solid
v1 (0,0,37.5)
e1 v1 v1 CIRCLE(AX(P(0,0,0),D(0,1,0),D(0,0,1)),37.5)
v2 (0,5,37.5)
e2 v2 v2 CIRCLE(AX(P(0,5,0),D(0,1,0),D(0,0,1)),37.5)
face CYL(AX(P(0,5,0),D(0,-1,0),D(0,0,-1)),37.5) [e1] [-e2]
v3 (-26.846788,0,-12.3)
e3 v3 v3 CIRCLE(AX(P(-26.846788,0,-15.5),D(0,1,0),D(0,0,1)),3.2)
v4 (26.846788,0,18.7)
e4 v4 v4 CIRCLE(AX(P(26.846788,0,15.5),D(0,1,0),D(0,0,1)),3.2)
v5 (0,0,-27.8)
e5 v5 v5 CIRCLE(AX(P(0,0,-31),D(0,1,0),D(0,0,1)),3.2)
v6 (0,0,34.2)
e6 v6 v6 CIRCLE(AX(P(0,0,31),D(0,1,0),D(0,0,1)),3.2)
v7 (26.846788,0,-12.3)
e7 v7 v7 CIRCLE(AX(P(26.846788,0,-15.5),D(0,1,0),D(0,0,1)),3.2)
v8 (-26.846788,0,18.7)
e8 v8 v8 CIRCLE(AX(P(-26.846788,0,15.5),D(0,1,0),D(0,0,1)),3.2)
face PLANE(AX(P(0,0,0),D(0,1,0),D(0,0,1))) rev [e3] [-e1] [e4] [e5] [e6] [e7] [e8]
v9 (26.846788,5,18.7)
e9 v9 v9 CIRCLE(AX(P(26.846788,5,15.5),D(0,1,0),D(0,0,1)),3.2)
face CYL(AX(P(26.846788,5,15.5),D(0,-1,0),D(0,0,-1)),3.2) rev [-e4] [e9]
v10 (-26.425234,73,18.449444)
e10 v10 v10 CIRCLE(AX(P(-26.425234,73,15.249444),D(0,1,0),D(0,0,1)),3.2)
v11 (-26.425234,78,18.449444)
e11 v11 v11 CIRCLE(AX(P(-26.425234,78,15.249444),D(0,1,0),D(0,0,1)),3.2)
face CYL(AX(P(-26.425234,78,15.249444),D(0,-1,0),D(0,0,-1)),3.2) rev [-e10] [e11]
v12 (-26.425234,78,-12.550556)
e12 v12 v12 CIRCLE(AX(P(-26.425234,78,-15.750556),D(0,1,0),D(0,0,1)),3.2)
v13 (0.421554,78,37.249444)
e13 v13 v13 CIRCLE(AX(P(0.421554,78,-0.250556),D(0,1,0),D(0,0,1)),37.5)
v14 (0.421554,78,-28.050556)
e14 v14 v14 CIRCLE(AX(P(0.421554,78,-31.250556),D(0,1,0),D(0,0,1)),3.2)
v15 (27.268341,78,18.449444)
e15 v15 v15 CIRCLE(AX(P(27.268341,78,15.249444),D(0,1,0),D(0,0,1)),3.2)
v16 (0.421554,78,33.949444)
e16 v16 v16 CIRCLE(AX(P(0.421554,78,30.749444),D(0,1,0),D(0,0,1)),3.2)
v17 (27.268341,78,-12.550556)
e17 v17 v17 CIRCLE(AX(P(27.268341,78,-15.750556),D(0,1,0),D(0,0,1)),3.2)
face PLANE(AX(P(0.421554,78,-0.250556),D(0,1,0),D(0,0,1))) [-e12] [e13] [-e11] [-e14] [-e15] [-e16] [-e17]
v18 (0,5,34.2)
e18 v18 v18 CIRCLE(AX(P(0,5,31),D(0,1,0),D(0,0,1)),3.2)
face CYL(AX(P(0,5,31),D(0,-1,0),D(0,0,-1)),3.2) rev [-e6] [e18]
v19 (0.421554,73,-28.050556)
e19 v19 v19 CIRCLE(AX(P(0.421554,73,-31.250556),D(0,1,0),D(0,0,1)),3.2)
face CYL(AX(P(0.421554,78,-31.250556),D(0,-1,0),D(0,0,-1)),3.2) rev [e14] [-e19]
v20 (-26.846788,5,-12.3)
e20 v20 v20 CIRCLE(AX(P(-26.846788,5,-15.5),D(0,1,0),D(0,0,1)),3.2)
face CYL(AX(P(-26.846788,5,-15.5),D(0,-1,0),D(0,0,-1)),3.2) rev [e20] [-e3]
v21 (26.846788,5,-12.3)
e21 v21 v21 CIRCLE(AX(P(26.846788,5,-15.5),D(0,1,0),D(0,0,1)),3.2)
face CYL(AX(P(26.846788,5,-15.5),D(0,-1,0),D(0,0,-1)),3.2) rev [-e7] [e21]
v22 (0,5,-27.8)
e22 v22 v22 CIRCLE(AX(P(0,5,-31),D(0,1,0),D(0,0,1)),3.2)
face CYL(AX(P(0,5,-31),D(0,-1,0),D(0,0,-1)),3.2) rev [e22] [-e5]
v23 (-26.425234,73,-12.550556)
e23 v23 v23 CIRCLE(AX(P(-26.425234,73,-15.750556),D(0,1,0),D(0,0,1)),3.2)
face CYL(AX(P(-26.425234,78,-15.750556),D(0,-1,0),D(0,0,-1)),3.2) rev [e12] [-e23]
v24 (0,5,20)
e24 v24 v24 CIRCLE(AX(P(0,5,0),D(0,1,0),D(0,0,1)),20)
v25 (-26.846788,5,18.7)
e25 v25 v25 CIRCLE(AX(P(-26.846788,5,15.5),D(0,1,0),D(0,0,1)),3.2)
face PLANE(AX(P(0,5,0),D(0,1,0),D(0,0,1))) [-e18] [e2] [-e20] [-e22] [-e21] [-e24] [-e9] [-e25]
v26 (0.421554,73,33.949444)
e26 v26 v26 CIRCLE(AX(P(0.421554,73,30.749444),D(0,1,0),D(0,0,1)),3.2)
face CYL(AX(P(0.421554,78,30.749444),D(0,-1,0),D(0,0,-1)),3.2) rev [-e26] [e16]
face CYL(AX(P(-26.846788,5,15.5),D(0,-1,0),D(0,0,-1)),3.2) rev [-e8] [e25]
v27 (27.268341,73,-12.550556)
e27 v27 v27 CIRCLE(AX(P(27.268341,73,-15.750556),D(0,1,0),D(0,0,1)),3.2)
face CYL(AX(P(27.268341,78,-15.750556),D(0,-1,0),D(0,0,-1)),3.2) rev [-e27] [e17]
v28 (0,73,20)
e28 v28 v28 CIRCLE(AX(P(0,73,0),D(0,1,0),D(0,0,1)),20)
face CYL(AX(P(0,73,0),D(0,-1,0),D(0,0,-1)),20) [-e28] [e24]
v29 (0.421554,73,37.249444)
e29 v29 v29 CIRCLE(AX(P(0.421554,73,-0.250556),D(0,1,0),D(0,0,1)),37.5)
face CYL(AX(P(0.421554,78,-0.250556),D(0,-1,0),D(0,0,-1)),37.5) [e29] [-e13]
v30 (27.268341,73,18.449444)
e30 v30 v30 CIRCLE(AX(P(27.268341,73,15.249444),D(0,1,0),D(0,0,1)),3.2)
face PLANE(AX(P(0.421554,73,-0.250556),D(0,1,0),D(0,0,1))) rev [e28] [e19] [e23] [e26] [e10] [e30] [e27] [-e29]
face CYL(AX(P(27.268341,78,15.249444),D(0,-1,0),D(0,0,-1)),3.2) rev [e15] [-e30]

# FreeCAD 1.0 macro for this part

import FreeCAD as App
import Part
import Sketcher
Q = App.Units.Quantity

doc = App.newDocument("Part")
body = doc.addObject("PartDesign::Body", "Body")

sketch1 = body.newObject("Sketcher::SketchObject", "Sketch")
sketch1.AttachmentSupport = (doc.getObject("XZ_Plane"), [""])
sketch1.MapMode = "FlatFace"
sketch1.addGeometry([
    Part.Circle(App.Vector(0, 0, 0), App.Vector(0, 0, 1), 37.5),
    Part.Circle(App.Vector(-26.8, 15.5, 0), App.Vector(0, 0, 1), 3.2),
    Part.Circle(App.Vector(0, 31, 0), App.Vector(0, 0, 1), 3.2),
    Part.Circle(App.Vector(26.8, 15.5, 0), App.Vector(0, 0, 1), 3.2),
    Part.Circle(App.Vector(-26.8, -15.5, 0), App.Vector(0, 0, 1), 3.2),
    Part.Circle(App.Vector(26.8, -15.5, 0), App.Vector(0, 0, 1), 3.2),
    Part.Circle(App.Vector(0, -31, 0), App.Vector(0, 0, 1), 3.2),
], False)
sketch1.addConstraint([
    Sketcher.Constraint("Coincident", 0, 3, -1, 1),
    Sketcher.Constraint("Equal", 1, 2),
    Sketcher.Constraint("Equal", 2, 3),
    Sketcher.Constraint("Equal", 3, 4),
    Sketcher.Constraint("Equal", 4, 5),
    Sketcher.Constraint("Equal", 5, 6),
    Sketcher.Constraint("Symmetric", 3, 3, 4, 3, -1, 1),
    Sketcher.Constraint("Symmetric", 1, 3, 5, 3, -1, 1),
    Sketcher.Constraint("Symmetric", 2, 3, 6, 3, -1, 1),
    Sketcher.Constraint("Symmetric", 1, 3, 3, 3, -2),
    Sketcher.Constraint("PointOnObject", 2, 3, -2),
    Sketcher.Constraint("Diameter", 0, Q("75 mm")),
    Sketcher.Constraint("Diameter", 1, Q("6.4 mm")),
    Sketcher.Constraint("DistanceY", -1, 1, 2, 3, Q("31 mm")),
    Sketcher.Constraint("DistanceY", 4, 3, 1, 3, Q("31 mm")),
    Sketcher.Constraint("DistanceX", 1, 3, -1, 1, Q("26.846788 mm")),
])
pad1 = body.newObject("PartDesign::Pad", "Pad")
pad1.Profile = sketch1
pad1.Length = 5
pad1.Reversed = True

sketch2 = body.newObject("Sketcher::SketchObject", "Sketch001")
sketch2.AttachmentSupport = (doc.getObject("XZ_Plane"), [""])
sketch2.MapMode = "FlatFace"
sketch2.AttachmentOffset = App.Placement(App.Vector(0, 0, -5), App.Rotation())
sketch2.addGeometry(Part.Circle(App.Vector(0, 0, 0), App.Vector(0, 0, 1), 20), False)
sketch2.addConstraint([
    Sketcher.Constraint("Coincident", 0, 3, -1, 1),
    Sketcher.Constraint("Diameter", 0, Q("40 mm")),
])
pad2 = body.newObject("PartDesign::Pad", "Pad001")
pad2.Profile = sketch2
pad2.Length = 68
pad2.Reversed = True

sketch3 = body.newObject("Sketcher::SketchObject", "Sketch002")
sketch3.AttachmentSupport = (doc.getObject("XZ_Plane"), [""])
sketch3.MapMode = "FlatFace"
sketch3.AttachmentOffset = App.Placement(App.Vector(0, 0, -73), App.Rotation())
sketch3.addGeometry([
    Part.Circle(App.Vector(0.4, -0.3, 0), App.Vector(0, 0, 1), 37.5),
    Part.Circle(App.Vector(0.4, 30.7, 0), App.Vector(0, 0, 1), 3.2),
    Part.Circle(App.Vector(-26.4, 15.2, 0), App.Vector(0, 0, 1), 3.2),
    Part.Circle(App.Vector(27.3, 15.2, 0), App.Vector(0, 0, 1), 3.2),
    Part.Circle(App.Vector(-26.4, -15.8, 0), App.Vector(0, 0, 1), 3.2),
    Part.Circle(App.Vector(0.4, -31.3, 0), App.Vector(0, 0, 1), 3.2),
    Part.Circle(App.Vector(27.3, -15.8, 0), App.Vector(0, 0, 1), 3.2),
], False)
sketch3.addConstraint([
    Sketcher.Constraint("Equal", 1, 2),
    Sketcher.Constraint("Equal", 2, 3),
    Sketcher.Constraint("Equal", 3, 4),
    Sketcher.Constraint("Equal", 4, 5),
    Sketcher.Constraint("Equal", 5, 6),
    Sketcher.Constraint("Horizontal", 2, 3, 3, 3),
    Sketcher.Constraint("Horizontal", 4, 3, 6, 3),
    Sketcher.Constraint("Vertical", 0, 3, 1, 3),
    Sketcher.Constraint("Vertical", 2, 3, 4, 3),
    Sketcher.Constraint("Vertical", 1, 3, 5, 3),
    Sketcher.Constraint("Vertical", 3, 3, 6, 3),
    Sketcher.Constraint("Diameter", 0, Q("75 mm")),
    Sketcher.Constraint("Diameter", 1, Q("6.4 mm")),
    Sketcher.Constraint("DistanceY", 0, 3, 1, 3, Q("31 mm")),
    Sketcher.Constraint("DistanceY", 4, 3, 2, 3, Q("31 mm")),
    Sketcher.Constraint("DistanceY", 5, 3, 0, 3, Q("31 mm")),
    Sketcher.Constraint("DistanceY", 2, 3, 1, 3, Q("15.5 mm")),
    Sketcher.Constraint("DistanceX", -1, 1, 3, 3, Q("27.268341 mm")),
    Sketcher.Constraint("DistanceX", -1, 1, 0, 3, Q("0.421554 mm")),
    Sketcher.Constraint("DistanceY", 0, 3, -1, 1, Q("0.250556 mm")),
    Sketcher.Constraint("DistanceX", 2, 3, -1, 1, Q("26.425234 mm")),
])
pad3 = body.newObject("PartDesign::Pad", "Pad002")
pad3.Profile = sketch3
pad3.Length = 5
pad3.Reversed = True

doc.recompute()
